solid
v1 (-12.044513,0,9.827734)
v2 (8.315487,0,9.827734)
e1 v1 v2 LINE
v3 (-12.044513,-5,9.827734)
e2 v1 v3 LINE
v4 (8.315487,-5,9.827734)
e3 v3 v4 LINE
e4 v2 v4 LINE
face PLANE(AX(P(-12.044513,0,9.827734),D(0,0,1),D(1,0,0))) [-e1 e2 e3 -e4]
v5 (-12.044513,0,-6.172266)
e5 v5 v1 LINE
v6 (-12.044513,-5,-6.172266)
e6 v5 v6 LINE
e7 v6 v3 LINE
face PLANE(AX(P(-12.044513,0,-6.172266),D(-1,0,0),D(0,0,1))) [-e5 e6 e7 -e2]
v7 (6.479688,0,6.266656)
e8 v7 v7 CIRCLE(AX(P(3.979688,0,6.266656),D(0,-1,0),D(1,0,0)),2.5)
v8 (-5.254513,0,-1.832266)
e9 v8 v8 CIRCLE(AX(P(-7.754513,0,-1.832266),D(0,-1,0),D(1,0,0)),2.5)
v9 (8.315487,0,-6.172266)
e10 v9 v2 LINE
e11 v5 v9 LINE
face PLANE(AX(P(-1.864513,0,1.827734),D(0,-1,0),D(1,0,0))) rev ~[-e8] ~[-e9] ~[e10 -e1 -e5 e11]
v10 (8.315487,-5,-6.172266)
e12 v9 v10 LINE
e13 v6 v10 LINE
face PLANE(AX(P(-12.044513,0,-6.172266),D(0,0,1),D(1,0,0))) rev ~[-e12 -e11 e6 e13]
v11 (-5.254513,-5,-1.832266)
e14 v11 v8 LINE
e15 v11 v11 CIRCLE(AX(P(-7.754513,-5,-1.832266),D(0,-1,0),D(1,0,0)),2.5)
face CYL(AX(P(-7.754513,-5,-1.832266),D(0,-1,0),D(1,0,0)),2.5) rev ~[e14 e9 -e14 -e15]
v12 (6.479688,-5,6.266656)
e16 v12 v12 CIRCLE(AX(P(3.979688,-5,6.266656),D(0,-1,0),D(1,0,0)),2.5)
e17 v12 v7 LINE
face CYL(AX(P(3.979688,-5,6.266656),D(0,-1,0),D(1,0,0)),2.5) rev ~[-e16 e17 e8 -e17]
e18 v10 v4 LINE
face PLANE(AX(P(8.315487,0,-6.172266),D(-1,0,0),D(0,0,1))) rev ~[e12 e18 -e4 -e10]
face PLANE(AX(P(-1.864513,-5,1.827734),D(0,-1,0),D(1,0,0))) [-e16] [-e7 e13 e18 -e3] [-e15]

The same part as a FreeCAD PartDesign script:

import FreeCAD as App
import Part
import Sketcher

V = App.Vector
Q = App.Units.Quantity


def add_polygon(sketch, points):
    """Adds a closed chain of lines whose ends are joined by coincident constraints."""
    first, n = sketch.GeometryCount, len(points)
    for a, b in zip(points, points[1:] + points[:1]):
        sketch.addGeometry(Part.LineSegment(App.Vector(*a, 0), App.Vector(*b, 0)), False)
    for i in range(n):
        sketch.addConstraint(Sketcher.Constraint("Coincident", first + i, 2, first + (i + 1) % n, 1))

doc = App.newDocument("Part")
body = doc.addObject("PartDesign::Body", "Body")

# Sketch on XZ plane
sketch1 = body.newObject("Sketcher::SketchObject", "Sketch")
sketch1.AttachmentSupport = (doc.getObject("XZ_Plane"), [""])
sketch1.MapMode = "FlatFace"
add_polygon(sketch1, [(-12, 10), (-12, -6), (8, -6), (8, 10)])  # lines 0-3
sketch1.addConstraint(Sketcher.Constraint("Vertical", 0))
sketch1.addConstraint(Sketcher.Constraint("Horizontal", 1))
sketch1.addConstraint(Sketcher.Constraint("Vertical", 2))
sketch1.addConstraint(Sketcher.Constraint("Horizontal", 3))
sketch1.addConstraint(Sketcher.Constraint("DistanceY", 0, 2, 0, 1, Q("16 mm")))
sketch1.addConstraint(Sketcher.Constraint("DistanceX", 1, 1, 1, 2, Q("20.36 mm")))
sketch1.addConstraint(Sketcher.Constraint("DistanceX", 0, 2, -1, 1, Q("12.044513 mm")))
sketch1.addConstraint(Sketcher.Constraint("DistanceY", 0, 2, -1, 1, Q("6.172266 mm")))
pad1 = body.newObject("PartDesign::Pad", "Pad")
pad1.Profile = sketch1
pad1.Length = 5

# Sketch on XZ plane
sketch2 = body.newObject("Sketcher::SketchObject", "Sketch001")
sketch2.AttachmentSupport = (doc.getObject("XZ_Plane"), [""])
sketch2.MapMode = "FlatFace"
sketch2.AttachmentOffset = App.Placement(V(0, 0, 5), App.Rotation())
sketch2.addGeometry(Part.Circle(V(-7.8, -1.8, 0), V(0, 0, 1), 2.5), False)
sketch2.addConstraint(Sketcher.Constraint("Diameter", 0, Q("5 mm")))
sketch2.addConstraint(Sketcher.Constraint("DistanceX", 0, 3, -1, 1, Q("7.754513 mm")))
sketch2.addConstraint(Sketcher.Constraint("DistanceY", 0, 3, -1, 1, Q("1.832266 mm")))
pocket1 = body.newObject("PartDesign::Pocket", "Pocket")
pocket1.Profile = sketch2
pocket1.Type = "ThroughAll"

# Sketch on XZ plane
sketch3 = body.newObject("Sketcher::SketchObject", "Sketch002")
sketch3.AttachmentSupport = (doc.getObject("XZ_Plane"), [""])
sketch3.MapMode = "FlatFace"
sketch3.AttachmentOffset = App.Placement(V(0, 0, 5), App.Rotation())
sketch3.addGeometry(Part.Circle(V(4, 6.3, 0), V(0, 0, 1), 2.5), False)
sketch3.addConstraint(Sketcher.Constraint("Diameter", 0, Q("5 mm")))
sketch3.addConstraint(Sketcher.Constraint("DistanceX", -1, 1, 0, 3, Q("3.979688 mm")))
sketch3.addConstraint(Sketcher.Constraint("DistanceY", -1, 1, 0, 3, Q("6.266656 mm")))
pocket2 = body.newObject("PartDesign::Pocket", "Pocket001")
pocket2.Profile = sketch3
pocket2.Type = "ThroughAll"

doc.recompute()
